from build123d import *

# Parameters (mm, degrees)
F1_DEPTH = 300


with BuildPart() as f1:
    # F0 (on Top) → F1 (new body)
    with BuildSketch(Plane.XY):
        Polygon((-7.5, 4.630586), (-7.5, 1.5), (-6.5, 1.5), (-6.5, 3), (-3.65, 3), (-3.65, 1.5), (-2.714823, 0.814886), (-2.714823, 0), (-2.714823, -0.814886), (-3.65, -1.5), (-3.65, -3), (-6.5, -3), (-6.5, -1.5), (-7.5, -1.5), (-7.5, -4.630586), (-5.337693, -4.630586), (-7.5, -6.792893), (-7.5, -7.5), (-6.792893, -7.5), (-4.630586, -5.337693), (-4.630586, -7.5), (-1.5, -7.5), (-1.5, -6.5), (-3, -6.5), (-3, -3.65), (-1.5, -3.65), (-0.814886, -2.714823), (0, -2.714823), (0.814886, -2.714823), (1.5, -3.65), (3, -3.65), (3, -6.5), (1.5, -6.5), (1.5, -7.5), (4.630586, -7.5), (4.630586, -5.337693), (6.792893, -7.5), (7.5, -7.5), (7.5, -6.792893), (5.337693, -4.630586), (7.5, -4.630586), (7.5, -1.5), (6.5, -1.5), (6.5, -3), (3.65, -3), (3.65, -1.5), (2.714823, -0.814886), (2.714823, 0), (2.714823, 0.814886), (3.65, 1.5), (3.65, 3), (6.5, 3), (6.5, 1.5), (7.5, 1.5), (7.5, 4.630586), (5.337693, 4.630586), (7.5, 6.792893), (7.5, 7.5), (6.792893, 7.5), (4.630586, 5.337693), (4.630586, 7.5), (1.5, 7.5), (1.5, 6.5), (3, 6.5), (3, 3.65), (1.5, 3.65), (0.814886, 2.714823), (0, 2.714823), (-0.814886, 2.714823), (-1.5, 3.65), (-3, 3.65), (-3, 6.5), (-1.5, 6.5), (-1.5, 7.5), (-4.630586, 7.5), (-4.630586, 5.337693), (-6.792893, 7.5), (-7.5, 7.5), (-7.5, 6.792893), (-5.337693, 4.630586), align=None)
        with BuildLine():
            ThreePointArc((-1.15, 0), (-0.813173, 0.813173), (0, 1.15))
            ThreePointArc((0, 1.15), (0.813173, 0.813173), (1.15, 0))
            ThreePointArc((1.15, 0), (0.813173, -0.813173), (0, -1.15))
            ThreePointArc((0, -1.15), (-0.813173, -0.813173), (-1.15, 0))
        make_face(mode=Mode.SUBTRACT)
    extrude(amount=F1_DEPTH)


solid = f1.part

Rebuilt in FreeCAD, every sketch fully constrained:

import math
import FreeCAD as App
import Part
import Sketcher

V = App.Vector
Q = App.Units.Quantity

doc = App.newDocument("Part")
params = doc.addObject("Spreadsheet::Sheet", "Params")
for row, (alias, value) in enumerate([
    ("sketch1_width", "1 mm"),
    ("sketch1_radius", "1.149999 mm"),
    ("sketch1_width2", "1.5 mm"),
    ("sketch1_width3", "2.85 mm"),
    ("pad1_length", "300 mm"),
], start=1):
    params.set(f"A{row}", alias)
    params.set(f"B{row}", "=" + value)
    params.setAlias(f"B{row}", alias)

body = doc.addObject("PartDesign::Body", "Body")

# Sketch on XY plane
sketch1 = body.newObject("Sketcher::SketchObject", "Sketch")
sketch1.AttachmentSupport = (doc.getObject("XY_Plane"), [""])
sketch1.MapMode = "FlatFace"
sketch1.addGeometry([
    Part.LineSegment(V(-7.5, 4.6, 0), V(-7.5, 1.5, 0)),  # 0
    Part.LineSegment(V(-7.5, 1.5, 0), V(-6.5, 1.5, 0)),  # 1
    Part.LineSegment(V(-6.5, 1.5, 0), V(-6.5, 3, 0)),  # 2
    Part.LineSegment(V(-6.5, 3, 0), V(-3.6, 3, 0)),  # 3
    Part.LineSegment(V(-3.6, 3, 0), V(-3.6, 1.5, 0)),  # 4
    Part.LineSegment(V(-3.6, 1.5, 0), V(-2.7, 0.8, 0)),  # 5
    Part.LineSegment(V(-2.7, 0.8, 0), V(-2.7, -0.8, 0)),  # 6
    Part.LineSegment(V(-2.7, -0.8, 0), V(-3.6, -1.5, 0)),  # 7
    Part.LineSegment(V(-3.6, -1.5, 0), V(-3.6, -3, 0)),  # 8
    Part.LineSegment(V(-3.6, -3, 0), V(-6.5, -3, 0)),  # 9
    Part.LineSegment(V(-6.5, -3, 0), V(-6.5, -1.5, 0)),  # 10
    Part.LineSegment(V(-6.5, -1.5, 0), V(-7.5, -1.5, 0)),  # 11
    Part.LineSegment(V(-7.5, -1.5, 0), V(-7.5, -4.6, 0)),  # 12
    Part.LineSegment(V(-7.5, -4.6, 0), V(-5.3, -4.6, 0)),  # 13
    Part.LineSegment(V(-5.3, -4.6, 0), V(-7.5, -6.8, 0)),  # 14
    Part.LineSegment(V(-7.5, -6.8, 0), V(-7.5, -7.5, 0)),  # 15
    Part.LineSegment(V(-7.5, -7.5, 0), V(-6.8, -7.5, 0)),  # 16
    Part.LineSegment(V(-6.8, -7.5, 0), V(-4.6, -5.3, 0)),  # 17
    Part.LineSegment(V(-4.6, -5.3, 0), V(-4.6, -7.5, 0)),  # 18
    Part.LineSegment(V(-4.6, -7.5, 0), V(-1.5, -7.5, 0)),  # 19
    Part.LineSegment(V(-1.5, -7.5, 0), V(-1.5, -6.5, 0)),  # 20
    Part.LineSegment(V(-1.5, -6.5, 0), V(-3, -6.5, 0)),  # 21
    Part.LineSegment(V(-3, -6.5, 0), V(-3, -3.6, 0)),  # 22
    Part.LineSegment(V(-3, -3.6, 0), V(-1.5, -3.6, 0)),  # 23
    Part.LineSegment(V(-1.5, -3.6, 0), V(-0.8, -2.7, 0)),  # 24
    Part.LineSegment(V(-0.8, -2.7, 0), V(0.8, -2.7, 0)),  # 25
    Part.LineSegment(V(0.8, -2.7, 0), V(1.5, -3.6, 0)),  # 26
    Part.LineSegment(V(1.5, -3.6, 0), V(3, -3.6, 0)),  # 27
    Part.LineSegment(V(3, -3.6, 0), V(3, -6.5, 0)),  # 28
    Part.LineSegment(V(3, -6.5, 0), V(1.5, -6.5, 0)),  # 29
    Part.LineSegment(V(1.5, -6.5, 0), V(1.5, -7.5, 0)),  # 30
    Part.LineSegment(V(1.5, -7.5, 0), V(4.6, -7.5, 0)),  # 31
    Part.LineSegment(V(4.6, -7.5, 0), V(4.6, -5.3, 0)),  # 32
    Part.LineSegment(V(4.6, -5.3, 0), V(6.8, -7.5, 0)),  # 33
    Part.LineSegment(V(6.8, -7.5, 0), V(7.5, -7.5, 0)),  # 34
    Part.LineSegment(V(7.5, -7.5, 0), V(7.5, -6.8, 0)),  # 35
    Part.LineSegment(V(7.5, -6.8, 0), V(5.3, -4.6, 0)),  # 36
    Part.LineSegment(V(5.3, -4.6, 0), V(7.5, -4.6, 0)),  # 37
    Part.LineSegment(V(7.5, -4.6, 0), V(7.5, -1.5, 0)),  # 38
    Part.LineSegment(V(7.5, -1.5, 0), V(6.5, -1.5, 0)),  # 39
    Part.LineSegment(V(6.5, -1.5, 0), V(6.5, -3, 0)),  # 40
    Part.LineSegment(V(6.5, -3, 0), V(3.6, -3, 0)),  # 41
    Part.LineSegment(V(3.6, -3, 0), V(3.6, -1.5, 0)),  # 42
    Part.LineSegment(V(3.6, -1.5, 0), V(2.7, -0.8, 0)),  # 43
    Part.LineSegment(V(2.7, -0.8, 0), V(2.7, 0.8, 0)),  # 44
    Part.LineSegment(V(2.7, 0.8, 0), V(3.6, 1.5, 0)),  # 45
    Part.LineSegment(V(3.6, 1.5, 0), V(3.6, 3, 0)),  # 46
    Part.LineSegment(V(3.6, 3, 0), V(6.5, 3, 0)),  # 47
    Part.LineSegment(V(6.5, 3, 0), V(6.5, 1.5, 0)),  # 48
    Part.LineSegment(V(6.5, 1.5, 0), V(7.5, 1.5, 0)),  # 49
    Part.LineSegment(V(7.5, 1.5, 0), V(7.5, 4.6, 0)),  # 50
    Part.LineSegment(V(7.5, 4.6, 0), V(5.3, 4.6, 0)),  # 51
    Part.LineSegment(V(5.3, 4.6, 0), V(7.5, 6.8, 0)),  # 52
    Part.LineSegment(V(7.5, 6.8, 0), V(7.5, 7.5, 0)),  # 53
    Part.LineSegment(V(7.5, 7.5, 0), V(6.8, 7.5, 0)),  # 54
    Part.LineSegment(V(6.8, 7.5, 0), V(4.6, 5.3, 0)),  # 55
    Part.LineSegment(V(4.6, 5.3, 0), V(4.6, 7.5, 0)),  # 56
    Part.LineSegment(V(4.6, 7.5, 0), V(1.5, 7.5, 0)),  # 57
    Part.LineSegment(V(1.5, 7.5, 0), V(1.5, 6.5, 0)),  # 58
    Part.LineSegment(V(1.5, 6.5, 0), V(3, 6.5, 0)),  # 59
    Part.LineSegment(V(3, 6.5, 0), V(3, 3.6, 0)),  # 60
    Part.LineSegment(V(3, 3.6, 0), V(1.5, 3.6, 0)),  # 61
    Part.LineSegment(V(1.5, 3.6, 0), V(0.8, 2.7, 0)),  # 62
    Part.LineSegment(V(0.8, 2.7, 0), V(-0.8, 2.7, 0)),  # 63
    Part.LineSegment(V(-0.8, 2.7, 0), V(-1.5, 3.6, 0)),  # 64
    Part.LineSegment(V(-1.5, 3.6, 0), V(-3, 3.6, 0)),  # 65
    Part.LineSegment(V(-3, 3.6, 0), V(-3, 6.5, 0)),  # 66
    Part.LineSegment(V(-3, 6.5, 0), V(-1.5, 6.5, 0)),  # 67
    Part.LineSegment(V(-1.5, 6.5, 0), V(-1.5, 7.5, 0)),  # 68
    Part.LineSegment(V(-1.5, 7.5, 0), V(-4.6, 7.5, 0)),  # 69
    Part.LineSegment(V(-4.6, 7.5, 0), V(-4.6, 5.3, 0)),  # 70
    Part.LineSegment(V(-4.6, 5.3, 0), V(-6.8, 7.5, 0)),  # 71
    Part.LineSegment(V(-6.8, 7.5, 0), V(-7.5, 7.5, 0)),  # 72
    Part.LineSegment(V(-7.5, 7.5, 0), V(-7.5, 6.8, 0)),  # 73
    Part.LineSegment(V(-7.5, 6.8, 0), V(-5.3, 4.6, 0)),  # 74
    Part.LineSegment(V(-5.3, 4.6, 0), V(-7.5, 4.6, 0)),  # 75
    Part.ArcOfCircle(Part.Circle(V(0, 0, 0), V(0, 0, 1), 1.1), math.radians(180), math.radians(270)),  # 76
    Part.ArcOfCircle(Part.Circle(V(0, 0, 0), V(0, 0, 1), 1.1), math.radians(90), math.radians(180)),  # 77
    Part.ArcOfCircle(Part.Circle(V(0, 0, 0), V(0, 0, 1), 1.1), math.radians(0), math.radians(90)),  # 78
    Part.ArcOfCircle(Part.Circle(V(0, 0, 0), V(0, 0, 1), 1.1), math.radians(-90), math.radians(0)),  # 79
], False)
sketch1.addConstraint([
    Sketcher.Constraint("Coincident", 0, 2, 1, 1),
    Sketcher.Constraint("Coincident", 1, 2, 2, 1),
    Sketcher.Constraint("Coincident", 2, 2, 3, 1),
    Sketcher.Constraint("Coincident", 3, 2, 4, 1),
    Sketcher.Constraint("Coincident", 4, 2, 5, 1),
    Sketcher.Constraint("Coincident", 5, 2, 6, 1),
    Sketcher.Constraint("Coincident", 6, 2, 7, 1),
    Sketcher.Constraint("Coincident", 7, 2, 8, 1),
    Sketcher.Constraint("Coincident", 8, 2, 9, 1),
    Sketcher.Constraint("Coincident", 9, 2, 10, 1),
    Sketcher.Constraint("Coincident", 10, 2, 11, 1),
    Sketcher.Constraint("Coincident", 11, 2, 12, 1),
    Sketcher.Constraint("Coincident", 12, 2, 13, 1),
    Sketcher.Constraint("Coincident", 13, 2, 14, 1),
    Sketcher.Constraint("Coincident", 14, 2, 15, 1),
    Sketcher.Constraint("Coincident", 15, 2, 16, 1),
    Sketcher.Constraint("Coincident", 16, 2, 17, 1),
    Sketcher.Constraint("Coincident", 17, 2, 18, 1),
    Sketcher.Constraint("Coincident", 18, 2, 19, 1),
    Sketcher.Constraint("Coincident", 19, 2, 20, 1),
    Sketcher.Constraint("Coincident", 20, 2, 21, 1),
    Sketcher.Constraint("Coincident", 21, 2, 22, 1),
    Sketcher.Constraint("Coincident", 22, 2, 23, 1),
    Sketcher.Constraint("Coincident", 23, 2, 24, 1),
    Sketcher.Constraint("Coincident", 24, 2, 25, 1),
    Sketcher.Constraint("Coincident", 25, 2, 26, 1),
    Sketcher.Constraint("Coincident", 26, 2, 27, 1),
    Sketcher.Constraint("Coincident", 27, 2, 28, 1),
    Sketcher.Constraint("Coincident", 28, 2, 29, 1),
    Sketcher.Constraint("Coincident", 29, 2, 30, 1),
    Sketcher.Constraint("Coincident", 30, 2, 31, 1),
    Sketcher.Constraint("Coincident", 31, 2, 32, 1),
    Sketcher.Constraint("Coincident", 32, 2, 33, 1),
    Sketcher.Constraint("Coincident", 33, 2, 34, 1),
    Sketcher.Constraint("Coincident", 34, 2, 35, 1),
    Sketcher.Constraint("Coincident", 35, 2, 36, 1),
    Sketcher.Constraint("Coincident", 36, 2, 37, 1),
    Sketcher.Constraint("Coincident", 37, 2, 38, 1),
    Sketcher.Constraint("Coincident", 38, 2, 39, 1),
    Sketcher.Constraint("Coincident", 39, 2, 40, 1),
    Sketcher.Constraint("Coincident", 40, 2, 41, 1),
    Sketcher.Constraint("Coincident", 41, 2, 42, 1),
    Sketcher.Constraint("Coincident", 42, 2, 43, 1),
    Sketcher.Constraint("Coincident", 43, 2, 44, 1),
    Sketcher.Constraint("Coincident", 44, 2, 45, 1),
    Sketcher.Constraint("Coincident", 45, 2, 46, 1),
    Sketcher.Constraint("Coincident", 46, 2, 47, 1),
    Sketcher.Constraint("Coincident", 47, 2, 48, 1),
    Sketcher.Constraint("Coincident", 48, 2, 49, 1),
    Sketcher.Constraint("Coincident", 49, 2, 50, 1),
    Sketcher.Constraint("Coincident", 50, 2, 51, 1),
    Sketcher.Constraint("Coincident", 51, 2, 52, 1),
    Sketcher.Constraint("Coincident", 52, 2, 53, 1),
    Sketcher.Constraint("Coincident", 53, 2, 54, 1),
    Sketcher.Constraint("Coincident", 54, 2, 55, 1),
    Sketcher.Constraint("Coincident", 55, 2, 56, 1),
    Sketcher.Constraint("Coincident", 56, 2, 57, 1),
    Sketcher.Constraint("Coincident", 57, 2, 58, 1),
    Sketcher.Constraint("Coincident", 58, 2, 59, 1),
    Sketcher.Constraint("Coincident", 59, 2, 60, 1),
    Sketcher.Constraint("Coincident", 60, 2, 61, 1),
    Sketcher.Constraint("Coincident", 61, 2, 62, 1),
    Sketcher.Constraint("Coincident", 62, 2, 63, 1),
    Sketcher.Constraint("Coincident", 63, 2, 64, 1),
    Sketcher.Constraint("Coincident", 64, 2, 65, 1),
    Sketcher.Constraint("Coincident", 65, 2, 66, 1),
    Sketcher.Constraint("Coincident", 66, 2, 67, 1),
    Sketcher.Constraint("Coincident", 67, 2, 68, 1),
    Sketcher.Constraint("Coincident", 68, 2, 69, 1),
    Sketcher.Constraint("Coincident", 69, 2, 70, 1),
    Sketcher.Constraint("Coincident", 70, 2, 71, 1),
    Sketcher.Constraint("Coincident", 71, 2, 72, 1),
    Sketcher.Constraint("Coincident", 72, 2, 73, 1),
    Sketcher.Constraint("Coincident", 73, 2, 74, 1),
    Sketcher.Constraint("Coincident", 74, 2, 75, 1),
    Sketcher.Constraint("Coincident", 75, 2, 0, 1),
    Sketcher.Constraint("Tangent", 76, 1, 77, 2),
    Sketcher.Constraint("Tangent", 77, 1, 78, 2),
    Sketcher.Constraint("Tangent", 78, 1, 79, 2),
    Sketcher.Constraint("Tangent", 79, 1, 76, 2),
    Sketcher.Constraint("Vertical", 0),
    Sketcher.Constraint("Horizontal", 1),
    Sketcher.Constraint("Vertical", 2),
    Sketcher.Constraint("Horizontal", 3),
    Sketcher.Constraint("Vertical", 4),
    Sketcher.Constraint("Vertical", 6),
    Sketcher.Constraint("Vertical", 8),
    Sketcher.Constraint("Horizontal", 9),
    Sketcher.Constraint("Vertical", 10),
    Sketcher.Constraint("Horizontal", 11),
    Sketcher.Constraint("Vertical", 12),
    Sketcher.Constraint("Horizontal", 13),
    Sketcher.Constraint("Vertical", 15),
    Sketcher.Constraint("Horizontal", 16),
    Sketcher.Constraint("Vertical", 18),
    Sketcher.Constraint("Horizontal", 19),
    Sketcher.Constraint("Vertical", 20),
    Sketcher.Constraint("Horizontal", 21),
    Sketcher.Constraint("Vertical", 22),
    Sketcher.Constraint("Horizontal", 23),
    Sketcher.Constraint("Horizontal", 25),
    Sketcher.Constraint("Horizontal", 27),
    Sketcher.Constraint("Vertical", 28),
    Sketcher.Constraint("Horizontal", 29),
    Sketcher.Constraint("Vertical", 30),
    Sketcher.Constraint("Horizontal", 31),
    Sketcher.Constraint("Vertical", 32),
    Sketcher.Constraint("Horizontal", 34),
    Sketcher.Constraint("Vertical", 35),
    Sketcher.Constraint("Horizontal", 37),
    Sketcher.Constraint("Vertical", 38),
    Sketcher.Constraint("Horizontal", 39),
    Sketcher.Constraint("Vertical", 40),
    Sketcher.Constraint("Horizontal", 41),
    Sketcher.Constraint("Vertical", 42),
    Sketcher.Constraint("Vertical", 44),
    Sketcher.Constraint("Vertical", 46),
    Sketcher.Constraint("Horizontal", 47),
    Sketcher.Constraint("Vertical", 48),
    Sketcher.Constraint("Horizontal", 49),
    Sketcher.Constraint("Vertical", 50),
    Sketcher.Constraint("Horizontal", 51),
    Sketcher.Constraint("Vertical", 53),
    Sketcher.Constraint("Horizontal", 54),
    Sketcher.Constraint("Vertical", 56),
    Sketcher.Constraint("Horizontal", 57),
    Sketcher.Constraint("Vertical", 58),
    Sketcher.Constraint("Horizontal", 59),
    Sketcher.Constraint("Vertical", 60),
    Sketcher.Constraint("Horizontal", 61),
    Sketcher.Constraint("Horizontal", 63),
    Sketcher.Constraint("Horizontal", 65),
    Sketcher.Constraint("Vertical", 66),
    Sketcher.Constraint("Horizontal", 67),
    Sketcher.Constraint("Vertical", 68),
    Sketcher.Constraint("Horizontal", 69),
    Sketcher.Constraint("Vertical", 70),
    Sketcher.Constraint("Horizontal", 72),
    Sketcher.Constraint("Vertical", 73),
    Sketcher.Constraint("Horizontal", 75),
    Sketcher.Constraint("Coincident", 76, 3, -1, 1),
    Sketcher.Constraint("Equal", 76, 77),
    Sketcher.Constraint("Symmetric", 0, 2, 38, 2, -1, 1),
    Sketcher.Constraint("Symmetric", 2, 2, 40, 2, -1, 1),
    Sketcher.Constraint("Symmetric", 4, 2, 42, 2, -1, 1),
    Sketcher.Constraint("Symmetric", 5, 2, 43, 2, -1, 1),
    Sketcher.Constraint("Symmetric", 7, 2, 45, 2, -1, 1),
    Sketcher.Constraint("Symmetric", 9, 2, 47, 2, -1, 1),
    Sketcher.Constraint("Symmetric", 11, 2, 49, 2, -1, 1),
    Sketcher.Constraint("Symmetric", 13, 2, 51, 2, -1, 1),
    Sketcher.Constraint("Symmetric", 14, 2, 52, 2, -1, 1),
    Sketcher.Constraint("Symmetric", 16, 2, 54, 2, -1, 1),
    Sketcher.Constraint("Symmetric", 17, 2, 55, 2, -1, 1),
    Sketcher.Constraint("Symmetric", 19, 2, 57, 2, -1, 1),
    Sketcher.Constraint("Symmetric", 21, 2, 59, 2, -1, 1),
    Sketcher.Constraint("Symmetric", 23, 2, 61, 2, -1, 1),
    Sketcher.Constraint("Symmetric", 24, 2, 62, 2, -1, 1),
    Sketcher.Constraint("Symmetric", 26, 2, 64, 2, -1, 1),
    Sketcher.Constraint("Symmetric", 28, 2, 66, 2, -1, 1),
    Sketcher.Constraint("Symmetric", 30, 2, 68, 2, -1, 1),
    Sketcher.Constraint("Symmetric", 32, 2, 70, 2, -1, 1),
    Sketcher.Constraint("Symmetric", 33, 2, 71, 2, -1, 1),
    Sketcher.Constraint("Symmetric", 35, 2, 73, 2, -1, 1),
    Sketcher.Constraint("Symmetric", 36, 2, 74, 2, -1, 1),
    Sketcher.Constraint("Symmetric", 23, 2, 26, 2, -2),
    Sketcher.Constraint("Symmetric", 21, 2, 28, 2, -2),
    Sketcher.Constraint("Symmetric", 19, 2, 30, 2, -2),
    Sketcher.Constraint("Symmetric", 17, 2, 32, 2, -2),
    Sketcher.Constraint("Symmetric", 16, 2, 33, 2, -2),
    Sketcher.Constraint("Symmetric", 14, 2, 35, 2, -2),
    Sketcher.Constraint("Symmetric", 13, 2, 36, 2, -2),
    Sketcher.Constraint("Symmetric", 11, 2, 38, 2, -2),
    Sketcher.Constraint("Symmetric", 9, 2, 40, 2, -2),
    Sketcher.Constraint("Symmetric", 7, 2, 42, 2, -2),
    Sketcher.Constraint("PointOnObject", 76, 1, -1),
    Sketcher.Constraint("PointOnObject", 77, 1, -2),
    Sketcher.Constraint("PointOnObject", 78, 1, -1),
    Sketcher.Constraint("PointOnObject", 79, 1, -2),
    Sketcher.Constraint("Parallel", 14, 17),
    Sketcher.Constraint("Perpendicular", 5, 24),
    Sketcher.Constraint("Perpendicular", 7, 26),
    Sketcher.Constraint("Perpendicular", 17, 33),
    Sketcher.Constraint("Perpendicular", 26, 45),
    Sketcher.Constraint("Perpendicular", 45, 64),
    Sketcher.Constraint("Horizontal", 1, 2, 4, 2),
    Sketcher.Constraint("Horizontal", 16, 2, 18, 2),
    Sketcher.Constraint("Horizontal", 6, 2, 43, 2),
    Sketcher.Constraint("Vertical", 12, 2, 14, 2),
    Sketcher.Constraint("Vertical", 20, 2, 23, 2),
    Sketcher.Constraint("Equal", 69, 0),
    Sketcher.Constraint("Equal", 67, 2),
    Sketcher.Constraint("Equal", 63, 6),
    Sketcher.Constraint("Equal", 72, 15),
    Sketcher.Constraint("Equal", 75, 18),
    Sketcher.Constraint("Equal", 49, 20),
    Sketcher.Constraint("Equal", 47, 22),
    Sketcher.Constraint("Equal", 7, 24),
    Sketcher.Constraint("DistanceX", 1, 1, 1, 2, Q("1 mm")),
    Sketcher.Constraint("Radius", 76, Q("1.149999 mm")),
    Sketcher.Constraint("DistanceX", 21, 2, 21, 1, Q("1.5 mm")),
    Sketcher.Constraint("DistanceY", -1, 1, 2, 2, Q("3 mm")),
    Sketcher.Constraint("DistanceX", 3, 1, 3, 2, Q("2.85 mm")),
    Sketcher.Constraint("DistanceX", 0, 2, -1, 1, Q("7.5 mm")),
    Sketcher.Constraint("DistanceX", 13, 1, 13, 2, Q("2.162307 mm")),
    Sketcher.Constraint("DistanceX", 16, 1, 16, 2, Q("0.707107 mm")),
    Sketcher.Constraint("DistanceX", 25, 1, 25, 2, Q("1.629772 mm")),
    Sketcher.Constraint("Distance", 5, Q("1.159283 mm")),
])
sketch1.setExpression("Constraints[197]", "Params.sketch1_width")
sketch1.setExpression("Constraints[198]", "Params.sketch1_radius")
sketch1.setExpression("Constraints[199]", "Params.sketch1_width2")
sketch1.setExpression("Constraints[201]", "Params.sketch1_width3")
pad1 = body.newObject("PartDesign::Pad", "Pad")
pad1.Profile = sketch1
pad1.setExpression("Length", "Params.pad1_length")

doc.recompute()
